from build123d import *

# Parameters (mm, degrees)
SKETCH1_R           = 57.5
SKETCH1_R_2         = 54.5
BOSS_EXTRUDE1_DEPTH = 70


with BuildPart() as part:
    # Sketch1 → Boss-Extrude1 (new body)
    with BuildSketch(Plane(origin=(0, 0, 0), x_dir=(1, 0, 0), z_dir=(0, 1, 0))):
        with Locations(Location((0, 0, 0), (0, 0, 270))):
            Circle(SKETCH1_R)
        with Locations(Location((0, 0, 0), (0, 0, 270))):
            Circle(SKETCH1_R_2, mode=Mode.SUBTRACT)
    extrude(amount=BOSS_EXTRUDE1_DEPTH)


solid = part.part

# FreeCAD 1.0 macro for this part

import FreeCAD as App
import Part
import Sketcher
from FreeCAD import Vector
Q = App.Units.Quantity

doc = App.newDocument("Part")
body = doc.addObject("PartDesign::Body", "Body")

sketch1 = doc.addObject("Sketcher::SketchObject", "Sketch")
body.addObject(sketch1)
sketch1.AttachmentSupport = (doc.XZ_Plane, [""])
sketch1.MapMode = "FlatFace"
sketch1.addGeometry([
    Part.Circle(Vector(0, 0, 0), Vector(0, 0, 1), 58),
    Part.Circle(Vector(0, 0, 0), Vector(0, 0, 1), 54),
], False)
sketch1.addConstraint([
    Sketcher.Constraint("Coincident", 0, 3, -1, 1),
    Sketcher.Constraint("Coincident", 1, 3, -1, 1),
    Sketcher.Constraint("Diameter", 0, Q("115 mm")),
    Sketcher.Constraint("Diameter", 1, Q("109 mm")),
])
pad1 = doc.addObject("PartDesign::Pad", "Pad")
body.addObject(pad1)
pad1.Profile = sketch1
pad1.Length = 70
pad1.Reversed = True

doc.recompute()
